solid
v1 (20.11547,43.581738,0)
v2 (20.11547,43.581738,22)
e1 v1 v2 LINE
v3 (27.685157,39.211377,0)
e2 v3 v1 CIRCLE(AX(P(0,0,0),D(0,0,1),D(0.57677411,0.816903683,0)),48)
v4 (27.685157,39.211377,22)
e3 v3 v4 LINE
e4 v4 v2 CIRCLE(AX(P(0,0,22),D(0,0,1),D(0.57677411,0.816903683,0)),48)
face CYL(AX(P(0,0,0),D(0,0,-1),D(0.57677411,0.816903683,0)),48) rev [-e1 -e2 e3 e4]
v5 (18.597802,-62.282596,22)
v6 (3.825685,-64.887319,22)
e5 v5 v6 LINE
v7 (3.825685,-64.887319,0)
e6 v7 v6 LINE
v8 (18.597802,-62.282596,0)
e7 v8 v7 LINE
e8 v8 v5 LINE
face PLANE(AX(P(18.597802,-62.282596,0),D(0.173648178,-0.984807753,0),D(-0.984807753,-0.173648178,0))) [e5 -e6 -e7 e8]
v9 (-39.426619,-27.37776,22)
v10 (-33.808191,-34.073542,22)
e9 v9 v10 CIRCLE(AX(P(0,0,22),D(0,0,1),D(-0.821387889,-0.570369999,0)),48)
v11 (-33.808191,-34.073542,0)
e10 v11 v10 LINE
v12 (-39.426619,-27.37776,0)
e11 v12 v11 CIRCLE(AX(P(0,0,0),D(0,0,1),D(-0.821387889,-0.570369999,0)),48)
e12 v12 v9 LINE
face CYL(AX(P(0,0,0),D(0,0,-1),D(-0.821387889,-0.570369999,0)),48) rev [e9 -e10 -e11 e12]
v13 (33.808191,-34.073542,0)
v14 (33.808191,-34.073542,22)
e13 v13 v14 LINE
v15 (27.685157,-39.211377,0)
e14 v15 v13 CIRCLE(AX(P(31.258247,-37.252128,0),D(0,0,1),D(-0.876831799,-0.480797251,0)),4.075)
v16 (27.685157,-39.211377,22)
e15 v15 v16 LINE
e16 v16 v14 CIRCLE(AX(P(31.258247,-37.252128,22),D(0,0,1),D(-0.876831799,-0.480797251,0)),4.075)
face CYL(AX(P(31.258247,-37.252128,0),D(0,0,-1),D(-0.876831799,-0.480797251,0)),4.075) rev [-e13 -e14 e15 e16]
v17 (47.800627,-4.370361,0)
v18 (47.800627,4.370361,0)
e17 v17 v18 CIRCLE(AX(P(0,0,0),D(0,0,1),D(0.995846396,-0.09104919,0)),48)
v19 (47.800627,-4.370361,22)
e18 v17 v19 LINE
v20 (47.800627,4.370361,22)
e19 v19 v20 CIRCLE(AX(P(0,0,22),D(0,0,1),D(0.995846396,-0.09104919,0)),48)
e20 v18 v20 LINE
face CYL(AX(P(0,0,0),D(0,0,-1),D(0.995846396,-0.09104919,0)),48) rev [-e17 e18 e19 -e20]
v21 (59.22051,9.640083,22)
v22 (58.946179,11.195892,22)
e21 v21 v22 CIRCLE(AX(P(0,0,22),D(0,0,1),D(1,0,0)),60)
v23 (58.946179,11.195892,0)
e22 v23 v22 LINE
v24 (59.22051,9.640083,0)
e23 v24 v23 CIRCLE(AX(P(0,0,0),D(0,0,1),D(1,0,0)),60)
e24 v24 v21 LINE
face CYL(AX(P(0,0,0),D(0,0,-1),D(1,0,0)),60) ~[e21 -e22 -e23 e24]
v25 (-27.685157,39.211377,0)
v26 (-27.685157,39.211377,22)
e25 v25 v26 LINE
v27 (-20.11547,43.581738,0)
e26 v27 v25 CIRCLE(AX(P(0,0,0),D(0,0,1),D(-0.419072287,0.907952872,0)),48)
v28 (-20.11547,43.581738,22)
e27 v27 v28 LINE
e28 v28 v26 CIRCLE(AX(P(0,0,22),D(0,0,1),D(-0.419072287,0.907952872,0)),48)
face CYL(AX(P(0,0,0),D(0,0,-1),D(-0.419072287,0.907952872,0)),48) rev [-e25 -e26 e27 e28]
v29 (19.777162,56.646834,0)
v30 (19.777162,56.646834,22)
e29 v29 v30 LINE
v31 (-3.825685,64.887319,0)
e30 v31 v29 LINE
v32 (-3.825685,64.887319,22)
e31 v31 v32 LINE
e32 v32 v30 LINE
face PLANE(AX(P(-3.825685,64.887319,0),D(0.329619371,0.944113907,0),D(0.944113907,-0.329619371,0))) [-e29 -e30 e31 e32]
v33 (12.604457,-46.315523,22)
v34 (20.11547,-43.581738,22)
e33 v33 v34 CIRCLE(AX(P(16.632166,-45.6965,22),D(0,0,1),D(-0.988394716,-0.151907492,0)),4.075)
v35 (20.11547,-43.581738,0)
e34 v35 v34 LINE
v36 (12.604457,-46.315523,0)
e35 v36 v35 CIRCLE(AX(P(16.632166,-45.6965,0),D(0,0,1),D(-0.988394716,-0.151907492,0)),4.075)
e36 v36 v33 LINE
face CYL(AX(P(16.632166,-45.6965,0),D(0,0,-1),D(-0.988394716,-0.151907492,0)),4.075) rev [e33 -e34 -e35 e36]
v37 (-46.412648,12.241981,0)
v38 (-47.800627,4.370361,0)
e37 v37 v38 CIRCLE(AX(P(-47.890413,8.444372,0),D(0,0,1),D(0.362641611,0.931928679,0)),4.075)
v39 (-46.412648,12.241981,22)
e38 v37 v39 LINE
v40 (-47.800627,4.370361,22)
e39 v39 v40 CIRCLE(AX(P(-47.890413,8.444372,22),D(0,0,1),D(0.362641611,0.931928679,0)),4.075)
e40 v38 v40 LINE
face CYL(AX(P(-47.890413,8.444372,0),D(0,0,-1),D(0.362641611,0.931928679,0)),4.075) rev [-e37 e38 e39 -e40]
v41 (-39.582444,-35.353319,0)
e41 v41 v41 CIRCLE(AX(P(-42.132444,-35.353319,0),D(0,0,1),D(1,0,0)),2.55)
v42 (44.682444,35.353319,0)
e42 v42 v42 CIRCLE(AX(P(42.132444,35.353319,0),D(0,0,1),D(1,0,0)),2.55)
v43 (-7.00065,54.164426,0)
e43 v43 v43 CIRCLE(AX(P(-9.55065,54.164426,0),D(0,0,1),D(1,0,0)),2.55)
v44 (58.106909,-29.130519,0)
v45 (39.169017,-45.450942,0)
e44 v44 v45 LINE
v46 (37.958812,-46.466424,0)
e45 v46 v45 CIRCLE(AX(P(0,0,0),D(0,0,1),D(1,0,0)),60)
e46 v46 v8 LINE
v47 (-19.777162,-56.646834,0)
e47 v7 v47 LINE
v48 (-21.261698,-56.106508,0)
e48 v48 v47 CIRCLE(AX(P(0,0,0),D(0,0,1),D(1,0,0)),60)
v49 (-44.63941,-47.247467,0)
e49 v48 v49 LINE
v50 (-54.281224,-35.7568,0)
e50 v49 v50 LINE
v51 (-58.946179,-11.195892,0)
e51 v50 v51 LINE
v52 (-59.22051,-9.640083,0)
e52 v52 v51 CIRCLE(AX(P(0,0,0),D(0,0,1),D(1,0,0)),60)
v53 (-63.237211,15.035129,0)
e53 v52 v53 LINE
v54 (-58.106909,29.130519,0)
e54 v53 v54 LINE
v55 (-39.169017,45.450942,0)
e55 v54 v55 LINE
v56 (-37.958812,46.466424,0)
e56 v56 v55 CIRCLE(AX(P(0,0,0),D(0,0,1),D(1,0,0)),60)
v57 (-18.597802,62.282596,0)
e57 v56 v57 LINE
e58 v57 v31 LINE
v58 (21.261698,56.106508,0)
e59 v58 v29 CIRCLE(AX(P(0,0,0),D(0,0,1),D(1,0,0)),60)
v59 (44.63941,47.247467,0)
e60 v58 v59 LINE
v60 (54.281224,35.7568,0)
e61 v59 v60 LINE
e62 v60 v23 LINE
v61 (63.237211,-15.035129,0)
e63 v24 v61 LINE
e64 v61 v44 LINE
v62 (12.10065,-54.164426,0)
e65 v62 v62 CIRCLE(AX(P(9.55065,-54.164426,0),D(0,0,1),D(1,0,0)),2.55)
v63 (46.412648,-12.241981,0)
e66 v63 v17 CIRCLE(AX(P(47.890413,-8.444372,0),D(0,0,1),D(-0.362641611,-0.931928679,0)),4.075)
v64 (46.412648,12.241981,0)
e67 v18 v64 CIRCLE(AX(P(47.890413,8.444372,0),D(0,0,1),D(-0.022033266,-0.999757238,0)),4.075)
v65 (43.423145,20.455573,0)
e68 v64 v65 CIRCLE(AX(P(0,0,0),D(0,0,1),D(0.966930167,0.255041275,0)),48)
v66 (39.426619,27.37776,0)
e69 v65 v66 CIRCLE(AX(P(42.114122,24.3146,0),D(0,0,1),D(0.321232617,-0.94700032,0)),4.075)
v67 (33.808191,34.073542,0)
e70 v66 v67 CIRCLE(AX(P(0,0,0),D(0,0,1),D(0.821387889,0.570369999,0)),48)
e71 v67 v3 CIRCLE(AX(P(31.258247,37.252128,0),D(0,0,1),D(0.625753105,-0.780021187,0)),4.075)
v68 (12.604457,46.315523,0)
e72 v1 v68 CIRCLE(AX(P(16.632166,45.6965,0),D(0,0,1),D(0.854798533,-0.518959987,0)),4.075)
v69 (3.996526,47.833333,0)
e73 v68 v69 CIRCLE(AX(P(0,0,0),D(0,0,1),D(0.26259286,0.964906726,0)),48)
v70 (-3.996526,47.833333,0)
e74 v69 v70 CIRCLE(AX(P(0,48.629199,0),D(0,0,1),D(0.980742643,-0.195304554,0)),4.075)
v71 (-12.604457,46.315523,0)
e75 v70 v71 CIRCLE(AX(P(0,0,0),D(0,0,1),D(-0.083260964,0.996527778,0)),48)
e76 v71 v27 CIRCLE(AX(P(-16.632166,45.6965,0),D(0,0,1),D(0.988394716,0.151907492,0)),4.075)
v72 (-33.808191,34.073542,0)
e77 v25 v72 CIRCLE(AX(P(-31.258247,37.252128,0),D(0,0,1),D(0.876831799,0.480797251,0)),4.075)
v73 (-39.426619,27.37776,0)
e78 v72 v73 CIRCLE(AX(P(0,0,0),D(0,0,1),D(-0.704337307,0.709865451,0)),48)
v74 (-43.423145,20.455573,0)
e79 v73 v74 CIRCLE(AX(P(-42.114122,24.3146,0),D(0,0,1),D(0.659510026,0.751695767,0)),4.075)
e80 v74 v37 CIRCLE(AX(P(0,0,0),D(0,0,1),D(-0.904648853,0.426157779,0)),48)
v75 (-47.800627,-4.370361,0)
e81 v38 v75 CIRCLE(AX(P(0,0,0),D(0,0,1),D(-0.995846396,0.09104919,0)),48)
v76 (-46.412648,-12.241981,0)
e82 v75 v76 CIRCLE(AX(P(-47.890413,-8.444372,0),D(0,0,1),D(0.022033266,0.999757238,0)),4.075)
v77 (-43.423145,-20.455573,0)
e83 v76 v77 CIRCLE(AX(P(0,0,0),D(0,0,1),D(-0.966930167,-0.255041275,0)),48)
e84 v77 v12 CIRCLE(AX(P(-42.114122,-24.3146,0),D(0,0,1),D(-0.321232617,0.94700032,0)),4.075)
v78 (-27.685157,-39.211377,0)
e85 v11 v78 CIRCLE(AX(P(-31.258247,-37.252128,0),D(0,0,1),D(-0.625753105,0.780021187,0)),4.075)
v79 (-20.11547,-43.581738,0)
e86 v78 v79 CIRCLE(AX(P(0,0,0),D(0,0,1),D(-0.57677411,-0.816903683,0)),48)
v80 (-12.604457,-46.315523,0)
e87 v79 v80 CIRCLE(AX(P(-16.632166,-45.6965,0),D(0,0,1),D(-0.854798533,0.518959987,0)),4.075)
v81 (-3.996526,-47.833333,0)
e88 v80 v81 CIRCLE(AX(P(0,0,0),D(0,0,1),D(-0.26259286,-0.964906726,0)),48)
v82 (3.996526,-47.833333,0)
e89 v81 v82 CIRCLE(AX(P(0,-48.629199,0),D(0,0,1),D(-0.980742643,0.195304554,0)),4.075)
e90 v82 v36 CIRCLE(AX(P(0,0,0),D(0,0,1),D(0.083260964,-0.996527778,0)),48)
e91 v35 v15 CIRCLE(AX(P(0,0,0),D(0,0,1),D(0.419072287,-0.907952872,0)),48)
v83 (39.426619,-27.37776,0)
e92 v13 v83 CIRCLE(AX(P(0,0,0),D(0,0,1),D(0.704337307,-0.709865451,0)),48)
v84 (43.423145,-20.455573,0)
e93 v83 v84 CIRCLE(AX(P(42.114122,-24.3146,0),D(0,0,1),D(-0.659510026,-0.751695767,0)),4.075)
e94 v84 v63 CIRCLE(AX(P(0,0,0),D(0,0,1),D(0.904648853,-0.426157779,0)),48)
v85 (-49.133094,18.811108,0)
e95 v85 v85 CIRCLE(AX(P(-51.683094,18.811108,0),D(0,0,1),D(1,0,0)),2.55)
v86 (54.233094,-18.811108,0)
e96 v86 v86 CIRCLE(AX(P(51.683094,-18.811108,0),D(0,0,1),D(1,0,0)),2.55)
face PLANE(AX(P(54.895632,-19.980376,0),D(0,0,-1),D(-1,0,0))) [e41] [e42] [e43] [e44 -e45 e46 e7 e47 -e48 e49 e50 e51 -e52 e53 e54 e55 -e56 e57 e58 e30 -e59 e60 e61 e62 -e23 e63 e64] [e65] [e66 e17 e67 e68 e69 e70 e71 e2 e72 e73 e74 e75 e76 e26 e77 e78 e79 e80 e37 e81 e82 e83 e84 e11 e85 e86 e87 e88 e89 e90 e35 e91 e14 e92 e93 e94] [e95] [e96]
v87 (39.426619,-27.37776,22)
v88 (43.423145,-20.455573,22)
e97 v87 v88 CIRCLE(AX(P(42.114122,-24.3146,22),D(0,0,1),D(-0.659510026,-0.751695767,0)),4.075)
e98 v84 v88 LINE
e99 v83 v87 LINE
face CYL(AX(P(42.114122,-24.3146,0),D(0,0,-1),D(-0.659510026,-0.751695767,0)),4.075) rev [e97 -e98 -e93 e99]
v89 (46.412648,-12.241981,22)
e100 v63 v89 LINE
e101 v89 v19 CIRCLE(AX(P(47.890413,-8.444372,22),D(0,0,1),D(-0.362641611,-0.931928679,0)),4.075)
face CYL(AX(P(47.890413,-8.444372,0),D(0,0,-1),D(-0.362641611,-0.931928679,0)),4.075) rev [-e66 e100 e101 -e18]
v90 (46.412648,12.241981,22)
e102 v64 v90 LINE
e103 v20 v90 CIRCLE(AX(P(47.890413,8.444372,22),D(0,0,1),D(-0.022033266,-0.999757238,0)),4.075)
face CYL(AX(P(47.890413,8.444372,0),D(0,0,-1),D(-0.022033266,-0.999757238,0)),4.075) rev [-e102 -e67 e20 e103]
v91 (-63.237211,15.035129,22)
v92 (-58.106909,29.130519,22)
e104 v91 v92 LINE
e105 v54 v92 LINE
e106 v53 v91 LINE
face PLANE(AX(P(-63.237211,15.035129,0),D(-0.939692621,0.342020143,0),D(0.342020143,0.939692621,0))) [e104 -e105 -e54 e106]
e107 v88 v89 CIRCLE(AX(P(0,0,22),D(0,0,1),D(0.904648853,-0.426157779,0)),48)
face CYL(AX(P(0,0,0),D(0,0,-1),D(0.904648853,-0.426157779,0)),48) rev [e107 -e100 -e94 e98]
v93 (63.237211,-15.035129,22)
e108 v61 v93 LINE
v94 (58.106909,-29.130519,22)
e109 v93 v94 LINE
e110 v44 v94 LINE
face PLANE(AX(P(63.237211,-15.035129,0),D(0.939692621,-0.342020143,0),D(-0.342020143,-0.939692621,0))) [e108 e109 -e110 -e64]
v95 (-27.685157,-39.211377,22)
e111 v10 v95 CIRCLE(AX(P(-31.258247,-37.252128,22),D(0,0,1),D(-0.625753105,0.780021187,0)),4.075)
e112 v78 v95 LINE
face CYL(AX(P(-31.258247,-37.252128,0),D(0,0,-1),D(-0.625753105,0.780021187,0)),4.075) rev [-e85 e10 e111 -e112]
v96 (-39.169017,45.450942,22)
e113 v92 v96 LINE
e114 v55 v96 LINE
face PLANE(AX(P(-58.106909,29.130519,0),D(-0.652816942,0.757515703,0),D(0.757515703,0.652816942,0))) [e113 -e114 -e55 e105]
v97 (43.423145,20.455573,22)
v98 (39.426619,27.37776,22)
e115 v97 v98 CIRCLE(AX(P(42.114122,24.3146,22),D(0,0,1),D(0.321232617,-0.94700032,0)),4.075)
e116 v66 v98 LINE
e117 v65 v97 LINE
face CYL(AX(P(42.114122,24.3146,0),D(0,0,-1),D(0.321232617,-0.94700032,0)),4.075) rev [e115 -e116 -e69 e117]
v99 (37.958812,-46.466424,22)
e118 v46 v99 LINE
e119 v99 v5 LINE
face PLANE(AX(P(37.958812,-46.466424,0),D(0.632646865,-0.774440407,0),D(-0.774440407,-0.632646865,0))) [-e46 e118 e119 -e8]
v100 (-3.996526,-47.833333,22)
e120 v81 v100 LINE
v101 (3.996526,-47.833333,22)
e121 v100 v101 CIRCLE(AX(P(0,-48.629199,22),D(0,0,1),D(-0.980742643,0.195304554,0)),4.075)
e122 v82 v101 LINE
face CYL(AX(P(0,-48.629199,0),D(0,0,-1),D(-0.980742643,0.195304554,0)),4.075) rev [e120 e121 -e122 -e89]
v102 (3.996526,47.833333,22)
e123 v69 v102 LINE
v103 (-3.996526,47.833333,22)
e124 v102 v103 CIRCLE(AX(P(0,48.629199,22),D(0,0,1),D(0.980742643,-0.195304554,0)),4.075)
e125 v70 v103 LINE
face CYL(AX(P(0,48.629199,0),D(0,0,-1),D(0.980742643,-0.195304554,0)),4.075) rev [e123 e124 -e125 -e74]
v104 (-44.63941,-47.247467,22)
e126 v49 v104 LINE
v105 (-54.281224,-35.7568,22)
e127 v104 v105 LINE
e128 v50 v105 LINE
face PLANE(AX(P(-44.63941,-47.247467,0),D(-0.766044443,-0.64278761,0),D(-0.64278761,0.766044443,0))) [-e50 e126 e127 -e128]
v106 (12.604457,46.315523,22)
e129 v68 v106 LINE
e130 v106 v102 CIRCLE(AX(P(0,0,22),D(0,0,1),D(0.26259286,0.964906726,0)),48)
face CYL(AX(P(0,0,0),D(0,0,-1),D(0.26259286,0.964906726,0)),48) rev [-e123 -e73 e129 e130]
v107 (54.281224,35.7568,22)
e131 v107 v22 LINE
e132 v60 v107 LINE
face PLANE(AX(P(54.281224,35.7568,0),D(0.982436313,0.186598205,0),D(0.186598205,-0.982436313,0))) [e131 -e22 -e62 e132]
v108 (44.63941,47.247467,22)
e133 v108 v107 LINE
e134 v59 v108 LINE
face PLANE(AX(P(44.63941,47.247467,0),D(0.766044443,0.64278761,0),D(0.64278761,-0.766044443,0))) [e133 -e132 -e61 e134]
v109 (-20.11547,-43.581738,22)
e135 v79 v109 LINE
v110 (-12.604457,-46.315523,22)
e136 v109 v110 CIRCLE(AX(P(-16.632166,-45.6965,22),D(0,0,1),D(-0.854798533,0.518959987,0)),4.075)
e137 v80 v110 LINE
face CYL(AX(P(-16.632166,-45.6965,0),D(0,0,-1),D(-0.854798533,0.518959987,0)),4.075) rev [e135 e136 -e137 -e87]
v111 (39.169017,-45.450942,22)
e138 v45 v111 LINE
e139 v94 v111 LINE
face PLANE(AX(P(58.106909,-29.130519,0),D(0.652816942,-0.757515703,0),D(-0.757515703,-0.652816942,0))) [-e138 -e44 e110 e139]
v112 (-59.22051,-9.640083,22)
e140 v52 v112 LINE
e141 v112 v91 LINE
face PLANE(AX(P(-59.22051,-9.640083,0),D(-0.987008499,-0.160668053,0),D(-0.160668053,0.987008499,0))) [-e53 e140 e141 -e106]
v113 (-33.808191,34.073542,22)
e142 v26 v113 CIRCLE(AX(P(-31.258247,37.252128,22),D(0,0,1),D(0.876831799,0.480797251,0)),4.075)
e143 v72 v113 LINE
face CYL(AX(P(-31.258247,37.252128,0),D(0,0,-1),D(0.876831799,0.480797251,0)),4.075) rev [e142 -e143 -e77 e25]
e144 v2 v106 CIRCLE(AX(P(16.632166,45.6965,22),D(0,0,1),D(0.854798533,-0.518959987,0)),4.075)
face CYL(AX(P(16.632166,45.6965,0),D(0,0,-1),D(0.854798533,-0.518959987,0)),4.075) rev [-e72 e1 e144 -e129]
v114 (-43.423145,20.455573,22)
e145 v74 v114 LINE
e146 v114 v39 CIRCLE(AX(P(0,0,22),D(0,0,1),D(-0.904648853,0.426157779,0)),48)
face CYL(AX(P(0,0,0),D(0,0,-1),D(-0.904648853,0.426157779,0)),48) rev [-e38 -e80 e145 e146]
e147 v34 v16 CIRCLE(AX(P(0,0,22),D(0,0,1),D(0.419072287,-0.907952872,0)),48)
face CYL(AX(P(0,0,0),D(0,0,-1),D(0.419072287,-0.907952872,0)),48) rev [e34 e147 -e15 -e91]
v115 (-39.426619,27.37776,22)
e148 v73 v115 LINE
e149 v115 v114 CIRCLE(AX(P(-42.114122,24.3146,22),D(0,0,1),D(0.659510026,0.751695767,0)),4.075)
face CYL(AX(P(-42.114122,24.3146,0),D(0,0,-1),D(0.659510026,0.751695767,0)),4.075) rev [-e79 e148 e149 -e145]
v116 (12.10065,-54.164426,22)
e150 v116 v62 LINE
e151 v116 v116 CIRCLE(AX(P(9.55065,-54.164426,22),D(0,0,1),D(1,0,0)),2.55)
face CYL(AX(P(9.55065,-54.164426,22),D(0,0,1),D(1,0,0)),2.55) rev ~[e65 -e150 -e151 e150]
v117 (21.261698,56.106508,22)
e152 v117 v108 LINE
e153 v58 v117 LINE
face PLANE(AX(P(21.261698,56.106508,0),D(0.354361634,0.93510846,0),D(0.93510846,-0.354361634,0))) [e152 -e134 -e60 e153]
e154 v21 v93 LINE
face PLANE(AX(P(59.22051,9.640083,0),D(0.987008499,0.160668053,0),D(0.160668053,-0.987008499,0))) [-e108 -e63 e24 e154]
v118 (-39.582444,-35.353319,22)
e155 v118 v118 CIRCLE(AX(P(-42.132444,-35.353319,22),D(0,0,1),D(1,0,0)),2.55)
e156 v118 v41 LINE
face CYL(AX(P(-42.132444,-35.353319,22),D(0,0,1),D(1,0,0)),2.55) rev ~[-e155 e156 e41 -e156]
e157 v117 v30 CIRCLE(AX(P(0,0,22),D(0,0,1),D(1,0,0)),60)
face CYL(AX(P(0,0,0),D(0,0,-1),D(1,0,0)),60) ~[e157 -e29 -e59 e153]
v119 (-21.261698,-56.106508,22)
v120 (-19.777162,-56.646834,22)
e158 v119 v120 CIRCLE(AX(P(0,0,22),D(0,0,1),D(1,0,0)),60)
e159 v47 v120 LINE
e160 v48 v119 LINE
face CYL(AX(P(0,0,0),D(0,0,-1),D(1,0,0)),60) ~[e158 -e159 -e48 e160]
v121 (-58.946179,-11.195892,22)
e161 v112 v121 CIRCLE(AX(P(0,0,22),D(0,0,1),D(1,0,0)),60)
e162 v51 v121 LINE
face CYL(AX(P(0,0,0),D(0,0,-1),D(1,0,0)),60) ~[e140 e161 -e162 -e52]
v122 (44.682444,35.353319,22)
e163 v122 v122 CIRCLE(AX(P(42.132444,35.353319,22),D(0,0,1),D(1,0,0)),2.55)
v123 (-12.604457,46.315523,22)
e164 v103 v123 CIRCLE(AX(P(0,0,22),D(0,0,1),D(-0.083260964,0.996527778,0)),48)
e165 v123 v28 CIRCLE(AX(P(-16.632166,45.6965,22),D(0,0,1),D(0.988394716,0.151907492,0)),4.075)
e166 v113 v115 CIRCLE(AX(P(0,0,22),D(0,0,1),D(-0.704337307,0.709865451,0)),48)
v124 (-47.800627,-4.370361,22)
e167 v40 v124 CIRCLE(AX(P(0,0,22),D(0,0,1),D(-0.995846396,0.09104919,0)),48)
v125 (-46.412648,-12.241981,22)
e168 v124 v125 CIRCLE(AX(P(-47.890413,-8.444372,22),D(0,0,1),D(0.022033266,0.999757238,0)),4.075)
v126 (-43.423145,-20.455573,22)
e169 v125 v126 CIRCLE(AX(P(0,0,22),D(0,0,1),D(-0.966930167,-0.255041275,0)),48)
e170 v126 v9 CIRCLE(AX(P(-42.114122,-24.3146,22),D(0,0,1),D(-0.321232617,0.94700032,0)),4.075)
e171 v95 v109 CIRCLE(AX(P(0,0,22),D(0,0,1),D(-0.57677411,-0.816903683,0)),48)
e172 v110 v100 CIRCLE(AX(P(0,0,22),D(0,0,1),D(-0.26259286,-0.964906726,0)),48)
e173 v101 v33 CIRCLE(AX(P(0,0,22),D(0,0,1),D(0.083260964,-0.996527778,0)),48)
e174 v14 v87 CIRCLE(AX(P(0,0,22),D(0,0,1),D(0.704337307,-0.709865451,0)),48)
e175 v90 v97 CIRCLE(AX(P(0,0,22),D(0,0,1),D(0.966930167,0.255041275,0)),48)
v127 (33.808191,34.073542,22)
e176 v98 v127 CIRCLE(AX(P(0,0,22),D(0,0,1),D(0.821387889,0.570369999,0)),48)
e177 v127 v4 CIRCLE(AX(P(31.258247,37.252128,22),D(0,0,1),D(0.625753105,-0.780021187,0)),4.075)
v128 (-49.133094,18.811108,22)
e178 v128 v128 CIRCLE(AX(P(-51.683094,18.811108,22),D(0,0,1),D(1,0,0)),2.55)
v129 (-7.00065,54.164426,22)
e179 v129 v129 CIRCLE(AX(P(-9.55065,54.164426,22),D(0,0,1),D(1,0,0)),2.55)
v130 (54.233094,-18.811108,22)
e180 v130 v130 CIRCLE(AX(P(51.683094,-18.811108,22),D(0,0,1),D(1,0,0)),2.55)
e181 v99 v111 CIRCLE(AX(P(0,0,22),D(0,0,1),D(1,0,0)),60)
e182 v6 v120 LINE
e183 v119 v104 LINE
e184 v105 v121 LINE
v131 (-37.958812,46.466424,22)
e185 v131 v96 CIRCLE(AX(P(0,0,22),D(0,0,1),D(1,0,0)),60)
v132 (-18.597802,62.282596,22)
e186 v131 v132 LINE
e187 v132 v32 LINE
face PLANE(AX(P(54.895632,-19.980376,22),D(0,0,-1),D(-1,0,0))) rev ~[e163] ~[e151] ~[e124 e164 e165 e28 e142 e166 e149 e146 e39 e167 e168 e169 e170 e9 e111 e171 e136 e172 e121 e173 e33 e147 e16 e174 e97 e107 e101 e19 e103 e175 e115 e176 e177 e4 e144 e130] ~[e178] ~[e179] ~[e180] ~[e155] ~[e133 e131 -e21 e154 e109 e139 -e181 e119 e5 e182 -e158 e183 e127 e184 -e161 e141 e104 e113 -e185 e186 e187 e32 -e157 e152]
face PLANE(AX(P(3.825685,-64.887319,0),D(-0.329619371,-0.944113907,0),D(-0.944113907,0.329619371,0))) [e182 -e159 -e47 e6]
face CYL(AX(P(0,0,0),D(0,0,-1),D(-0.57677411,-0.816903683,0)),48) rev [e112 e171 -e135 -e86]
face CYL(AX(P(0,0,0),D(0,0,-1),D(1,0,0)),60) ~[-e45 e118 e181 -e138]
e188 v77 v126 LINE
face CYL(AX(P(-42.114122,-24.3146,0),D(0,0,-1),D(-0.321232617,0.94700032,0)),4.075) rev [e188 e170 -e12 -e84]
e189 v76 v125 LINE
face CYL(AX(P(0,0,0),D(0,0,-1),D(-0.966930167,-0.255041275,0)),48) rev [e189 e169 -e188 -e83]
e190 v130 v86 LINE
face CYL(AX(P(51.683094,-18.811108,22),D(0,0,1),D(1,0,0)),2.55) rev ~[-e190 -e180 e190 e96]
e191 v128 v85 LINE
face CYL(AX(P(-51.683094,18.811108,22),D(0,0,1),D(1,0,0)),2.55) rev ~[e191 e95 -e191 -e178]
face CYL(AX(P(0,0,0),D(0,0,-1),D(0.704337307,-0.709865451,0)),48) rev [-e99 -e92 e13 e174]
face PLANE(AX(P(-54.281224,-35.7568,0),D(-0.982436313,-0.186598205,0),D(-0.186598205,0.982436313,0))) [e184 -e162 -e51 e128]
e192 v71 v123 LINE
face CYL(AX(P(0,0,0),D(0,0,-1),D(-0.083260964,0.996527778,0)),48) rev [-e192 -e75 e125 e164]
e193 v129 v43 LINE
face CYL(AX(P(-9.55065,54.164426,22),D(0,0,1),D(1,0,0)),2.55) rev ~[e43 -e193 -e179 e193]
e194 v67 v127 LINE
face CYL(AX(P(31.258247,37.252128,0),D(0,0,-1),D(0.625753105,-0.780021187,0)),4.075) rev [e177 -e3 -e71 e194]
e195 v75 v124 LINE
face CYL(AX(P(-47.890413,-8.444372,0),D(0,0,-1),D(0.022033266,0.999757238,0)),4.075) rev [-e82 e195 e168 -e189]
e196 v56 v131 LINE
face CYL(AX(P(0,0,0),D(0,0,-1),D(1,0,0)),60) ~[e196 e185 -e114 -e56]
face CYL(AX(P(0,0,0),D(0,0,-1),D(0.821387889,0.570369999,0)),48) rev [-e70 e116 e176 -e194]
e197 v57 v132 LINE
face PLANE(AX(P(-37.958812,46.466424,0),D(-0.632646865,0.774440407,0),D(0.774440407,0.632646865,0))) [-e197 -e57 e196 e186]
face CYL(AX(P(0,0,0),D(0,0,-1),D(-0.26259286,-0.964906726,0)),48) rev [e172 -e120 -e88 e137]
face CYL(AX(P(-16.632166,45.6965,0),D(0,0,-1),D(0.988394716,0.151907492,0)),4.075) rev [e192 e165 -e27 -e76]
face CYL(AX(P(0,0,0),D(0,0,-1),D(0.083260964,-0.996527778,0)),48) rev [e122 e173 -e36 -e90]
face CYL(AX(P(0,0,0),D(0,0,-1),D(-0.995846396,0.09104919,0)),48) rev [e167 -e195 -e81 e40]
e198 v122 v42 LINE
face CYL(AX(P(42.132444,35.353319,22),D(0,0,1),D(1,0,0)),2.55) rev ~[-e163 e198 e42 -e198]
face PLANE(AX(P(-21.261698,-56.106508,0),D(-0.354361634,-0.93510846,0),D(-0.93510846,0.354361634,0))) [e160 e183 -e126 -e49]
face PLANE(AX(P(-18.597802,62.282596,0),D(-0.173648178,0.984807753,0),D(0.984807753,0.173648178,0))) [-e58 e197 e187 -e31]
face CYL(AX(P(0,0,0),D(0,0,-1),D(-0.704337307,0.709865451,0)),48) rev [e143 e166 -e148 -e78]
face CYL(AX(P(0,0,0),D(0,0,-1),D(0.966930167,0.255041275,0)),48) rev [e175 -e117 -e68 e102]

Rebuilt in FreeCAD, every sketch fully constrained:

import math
import FreeCAD as App
import Part
import Sketcher
Q = App.Units.Quantity

doc = App.newDocument("Part")
body = doc.addObject("PartDesign::Body", "Body")

sketch1 = doc.addObject("Sketcher::SketchObject", "Sketch")
body.addObject(sketch1)
sketch1.AttachmentSupport = (doc.XY_Plane, [""])
sketch1.MapMode = "FlatFace"
sketch1.addGeometry(Part.Circle(App.Vector(0, 0, 0), App.Vector(0, 0, 1), 60), False)
sketch1.addGeometry(Part.ArcOfCircle(Part.Circle(App.Vector(0, 48.6, 0), App.Vector(0, 0, 1), 4.1), math.radians(-11), math.radians(191)), False)
sketch1.addGeometry(Part.ArcOfCircle(Part.Circle(App.Vector(0, 0, 0), App.Vector(0, 0, 1), 48), math.radians(74.78), math.radians(85.22)), False)
sketch1.addGeometry(Part.ArcOfCircle(Part.Circle(App.Vector(16.6, 45.7, 0), App.Vector(0, 0, 1), 4.1), math.radians(-31), math.radians(171)), False)
sketch1.addGeometry(Part.ArcOfCircle(Part.Circle(App.Vector(0, 0, 0), App.Vector(0, 0, 1), 48), math.radians(54.78), math.radians(65.22)), False)
sketch1.addGeometry(Part.ArcOfCircle(Part.Circle(App.Vector(31.3, 37.3, 0), App.Vector(0, 0, 1), 4.1), math.radians(-51), math.radians(151)), False)
sketch1.addGeometry(Part.ArcOfCircle(Part.Circle(App.Vector(0, 0, 0), App.Vector(0, 0, 1), 48), math.radians(34.78), math.radians(45.22)), False)
sketch1.addGeometry(Part.ArcOfCircle(Part.Circle(App.Vector(42.1, 24.3, 0), App.Vector(0, 0, 1), 4.1), math.radians(-71), math.radians(131)), False)
sketch1.addGeometry(Part.ArcOfCircle(Part.Circle(App.Vector(0, 0, 0), App.Vector(0, 0, 1), 48), math.radians(14.78), math.radians(25.22)), False)
sketch1.addGeometry(Part.ArcOfCircle(Part.Circle(App.Vector(47.9, 8.4, 0), App.Vector(0, 0, 1), 4.1), math.radians(-91), math.radians(111)), False)
sketch1.addGeometry(Part.ArcOfCircle(Part.Circle(App.Vector(0, 0, 0), App.Vector(0, 0, 1), 48), math.radians(-5.22), math.radians(5.22)), False)
sketch1.addGeometry(Part.ArcOfCircle(Part.Circle(App.Vector(47.9, -8.4, 0), App.Vector(0, 0, 1), 4.1), math.radians(-111), math.radians(91)), False)
sketch1.addGeometry(Part.ArcOfCircle(Part.Circle(App.Vector(0, 0, 0), App.Vector(0, 0, 1), 48), math.radians(-25.22), math.radians(-14.78)), False)
sketch1.addGeometry(Part.ArcOfCircle(Part.Circle(App.Vector(42.1, -24.3, 0), App.Vector(0, 0, 1), 4.1), math.radians(-131), math.radians(71)), False)
sketch1.addGeometry(Part.ArcOfCircle(Part.Circle(App.Vector(0, 0, 0), App.Vector(0, 0, 1), 48), math.radians(-45.22), math.radians(-34.78)), False)
sketch1.addGeometry(Part.ArcOfCircle(Part.Circle(App.Vector(31.3, -37.3, 0), App.Vector(0, 0, 1), 4.1), math.radians(-151), math.radians(51)), False)
sketch1.addGeometry(Part.ArcOfCircle(Part.Circle(App.Vector(0, 0, 0), App.Vector(0, 0, 1), 48), math.radians(-65.22), math.radians(-54.78)), False)
sketch1.addGeometry(Part.ArcOfCircle(Part.Circle(App.Vector(16.6, -45.7, 0), App.Vector(0, 0, 1), 4.1), math.radians(-171), math.radians(31)), False)
sketch1.addGeometry(Part.ArcOfCircle(Part.Circle(App.Vector(0, 0, 0), App.Vector(0, 0, 1), 48), math.radians(-85.22), math.radians(-74.78)), False)
sketch1.addGeometry(Part.ArcOfCircle(Part.Circle(App.Vector(0, -48.6, 0), App.Vector(0, 0, 1), 4.1), math.radians(169), math.radians(371)), False)
sketch1.addGeometry(Part.ArcOfCircle(Part.Circle(App.Vector(0, 0, 0), App.Vector(0, 0, 1), 48), math.radians(-105.22), math.radians(-94.78)), False)
sketch1.addGeometry(Part.ArcOfCircle(Part.Circle(App.Vector(-16.6, -45.7, 0), App.Vector(0, 0, 1), 4.1), math.radians(149), math.radians(351)), False)
sketch1.addGeometry(Part.ArcOfCircle(Part.Circle(App.Vector(0, 0, 0), App.Vector(0, 0, 1), 48), math.radians(-125.22), math.radians(-114.78)), False)
sketch1.addGeometry(Part.ArcOfCircle(Part.Circle(App.Vector(-31.3, -37.3, 0), App.Vector(0, 0, 1), 4.1), math.radians(129), math.radians(331)), False)
sketch1.addGeometry(Part.ArcOfCircle(Part.Circle(App.Vector(0, 0, 0), App.Vector(0, 0, 1), 48), math.radians(-145.22), math.radians(-134.78)), False)
sketch1.addGeometry(Part.ArcOfCircle(Part.Circle(App.Vector(-42.1, -24.3, 0), App.Vector(0, 0, 1), 4.1), math.radians(109), math.radians(311)), False)
sketch1.addGeometry(Part.ArcOfCircle(Part.Circle(App.Vector(0, 0, 0), App.Vector(0, 0, 1), 48), math.radians(-165.22), math.radians(-154.78)), False)
sketch1.addGeometry(Part.ArcOfCircle(Part.Circle(App.Vector(-47.9, -8.4, 0), App.Vector(0, 0, 1), 4.1), math.radians(89), math.radians(291)), False)
sketch1.addGeometry(Part.ArcOfCircle(Part.Circle(App.Vector(0, 0, 0), App.Vector(0, 0, 1), 48), math.radians(174.78), math.radians(185.22)), False)
sketch1.addGeometry(Part.ArcOfCircle(Part.Circle(App.Vector(-47.9, 8.4, 0), App.Vector(0, 0, 1), 4.1), math.radians(69), math.radians(271)), False)
sketch1.addGeometry(Part.ArcOfCircle(Part.Circle(App.Vector(0, 0, 0), App.Vector(0, 0, 1), 48), math.radians(154.78), math.radians(165.22)), False)
sketch1.addGeometry(Part.ArcOfCircle(Part.Circle(App.Vector(-42.1, 24.3, 0), App.Vector(0, 0, 1), 4.1), math.radians(49), math.radians(251)), False)
sketch1.addGeometry(Part.ArcOfCircle(Part.Circle(App.Vector(0, 0, 0), App.Vector(0, 0, 1), 48), math.radians(134.78), math.radians(145.22)), False)
sketch1.addGeometry(Part.ArcOfCircle(Part.Circle(App.Vector(-31.3, 37.3, 0), App.Vector(0, 0, 1), 4.1), math.radians(29), math.radians(231)), False)
sketch1.addGeometry(Part.ArcOfCircle(Part.Circle(App.Vector(0, 0, 0), App.Vector(0, 0, 1), 48), math.radians(114.78), math.radians(125.22)), False)
sketch1.addGeometry(Part.ArcOfCircle(Part.Circle(App.Vector(-16.6, 45.7, 0), App.Vector(0, 0, 1), 4.1), math.radians(9), math.radians(211)), False)
sketch1.addGeometry(Part.ArcOfCircle(Part.Circle(App.Vector(0, 0, 0), App.Vector(0, 0, 1), 48), math.radians(94.78), math.radians(105.22)), False)
sketch1.addConstraint(Sketcher.Constraint("Coincident", 1, 1, 2, 2))
sketch1.addConstraint(Sketcher.Constraint("Coincident", 2, 1, 3, 2))
sketch1.addConstraint(Sketcher.Constraint("Coincident", 3, 1, 4, 2))
sketch1.addConstraint(Sketcher.Constraint("Coincident", 4, 1, 5, 2))
sketch1.addConstraint(Sketcher.Constraint("Coincident", 5, 1, 6, 2))
sketch1.addConstraint(Sketcher.Constraint("Coincident", 6, 1, 7, 2))
sketch1.addConstraint(Sketcher.Constraint("Coincident", 7, 1, 8, 2))
sketch1.addConstraint(Sketcher.Constraint("Coincident", 8, 1, 9, 2))
sketch1.addConstraint(Sketcher.Constraint("Coincident", 9, 1, 10, 2))
sketch1.addConstraint(Sketcher.Constraint("Coincident", 10, 1, 11, 2))
sketch1.addConstraint(Sketcher.Constraint("Coincident", 11, 1, 12, 2))
sketch1.addConstraint(Sketcher.Constraint("Coincident", 12, 1, 13, 2))
sketch1.addConstraint(Sketcher.Constraint("Coincident", 13, 1, 14, 2))
sketch1.addConstraint(Sketcher.Constraint("Coincident", 14, 1, 15, 2))
sketch1.addConstraint(Sketcher.Constraint("Coincident", 15, 1, 16, 2))
sketch1.addConstraint(Sketcher.Constraint("Coincident", 16, 1, 17, 2))
sketch1.addConstraint(Sketcher.Constraint("Coincident", 17, 1, 18, 2))
sketch1.addConstraint(Sketcher.Constraint("Coincident", 18, 1, 19, 2))
sketch1.addConstraint(Sketcher.Constraint("Coincident", 19, 1, 20, 2))
sketch1.addConstraint(Sketcher.Constraint("Coincident", 20, 1, 21, 2))
sketch1.addConstraint(Sketcher.Constraint("Coincident", 21, 1, 22, 2))
sketch1.addConstraint(Sketcher.Constraint("Coincident", 22, 1, 23, 2))
sketch1.addConstraint(Sketcher.Constraint("Coincident", 23, 1, 24, 2))
sketch1.addConstraint(Sketcher.Constraint("Coincident", 24, 1, 25, 2))
sketch1.addConstraint(Sketcher.Constraint("Coincident", 25, 1, 26, 2))
sketch1.addConstraint(Sketcher.Constraint("Coincident", 26, 1, 27, 2))
sketch1.addConstraint(Sketcher.Constraint("Coincident", 27, 1, 28, 2))
sketch1.addConstraint(Sketcher.Constraint("Coincident", 28, 1, 29, 2))
sketch1.addConstraint(Sketcher.Constraint("Coincident", 29, 1, 30, 2))
sketch1.addConstraint(Sketcher.Constraint("Coincident", 30, 1, 31, 2))
sketch1.addConstraint(Sketcher.Constraint("Coincident", 31, 1, 32, 2))
sketch1.addConstraint(Sketcher.Constraint("Coincident", 32, 1, 33, 2))
sketch1.addConstraint(Sketcher.Constraint("Coincident", 33, 1, 34, 2))
sketch1.addConstraint(Sketcher.Constraint("Coincident", 34, 1, 35, 2))
sketch1.addConstraint(Sketcher.Constraint("Coincident", 35, 1, 36, 2))
sketch1.addConstraint(Sketcher.Constraint("Coincident", 36, 1, 1, 2))
sketch1.addConstraint(Sketcher.Constraint("Coincident", 0, 3, -1, 1))
sketch1.addConstraint(Sketcher.Constraint("Coincident", 2, 3, -1, 1))
sketch1.addConstraint(Sketcher.Constraint("Coincident", 4, 3, -1, 1))
sketch1.addConstraint(Sketcher.Constraint("Coincident", 6, 3, -1, 1))
sketch1.addConstraint(Sketcher.Constraint("Coincident", 8, 3, -1, 1))
sketch1.addConstraint(Sketcher.Constraint("Coincident", 10, 3, -1, 1))
sketch1.addConstraint(Sketcher.Constraint("Coincident", 12, 3, -1, 1))
sketch1.addConstraint(Sketcher.Constraint("Coincident", 14, 3, -1, 1))
sketch1.addConstraint(Sketcher.Constraint("Coincident", 16, 3, -1, 1))
sketch1.addConstraint(Sketcher.Constraint("Coincident", 18, 3, -1, 1))
sketch1.addConstraint(Sketcher.Constraint("Coincident", 20, 3, -1, 1))
sketch1.addConstraint(Sketcher.Constraint("Coincident", 22, 3, -1, 1))
sketch1.addConstraint(Sketcher.Constraint("Coincident", 24, 3, -1, 1))
sketch1.addConstraint(Sketcher.Constraint("Coincident", 26, 3, -1, 1))
sketch1.addConstraint(Sketcher.Constraint("Coincident", 28, 3, -1, 1))
sketch1.addConstraint(Sketcher.Constraint("Coincident", 30, 3, -1, 1))
sketch1.addConstraint(Sketcher.Constraint("Coincident", 32, 3, -1, 1))
sketch1.addConstraint(Sketcher.Constraint("Coincident", 34, 3, -1, 1))
sketch1.addConstraint(Sketcher.Constraint("Coincident", 36, 3, -1, 1))
sketch1.addConstraint(Sketcher.Constraint("Equal", 1, 3))
sketch1.addConstraint(Sketcher.Constraint("Equal", 2, 4))
sketch1.addConstraint(Sketcher.Constraint("Equal", 3, 5))
sketch1.addConstraint(Sketcher.Constraint("Equal", 4, 6))
sketch1.addConstraint(Sketcher.Constraint("Equal", 5, 7))
sketch1.addConstraint(Sketcher.Constraint("Equal", 6, 8))
sketch1.addConstraint(Sketcher.Constraint("Equal", 7, 9))
sketch1.addConstraint(Sketcher.Constraint("Equal", 8, 10))
sketch1.addConstraint(Sketcher.Constraint("Equal", 9, 11))
sketch1.addConstraint(Sketcher.Constraint("Equal", 10, 12))
sketch1.addConstraint(Sketcher.Constraint("Equal", 11, 13))
sketch1.addConstraint(Sketcher.Constraint("Equal", 12, 14))
sketch1.addConstraint(Sketcher.Constraint("Equal", 13, 15))
sketch1.addConstraint(Sketcher.Constraint("Equal", 14, 16))
sketch1.addConstraint(Sketcher.Constraint("Equal", 15, 17))
sketch1.addConstraint(Sketcher.Constraint("Equal", 16, 18))
sketch1.addConstraint(Sketcher.Constraint("Equal", 17, 19))
sketch1.addConstraint(Sketcher.Constraint("Equal", 18, 20))
sketch1.addConstraint(Sketcher.Constraint("Equal", 19, 21))
sketch1.addConstraint(Sketcher.Constraint("Equal", 20, 22))
sketch1.addConstraint(Sketcher.Constraint("Equal", 21, 23))
sketch1.addConstraint(Sketcher.Constraint("Equal", 22, 24))
sketch1.addConstraint(Sketcher.Constraint("Equal", 23, 25))
sketch1.addConstraint(Sketcher.Constraint("Equal", 24, 26))
sketch1.addConstraint(Sketcher.Constraint("Equal", 25, 27))
sketch1.addConstraint(Sketcher.Constraint("Equal", 26, 28))
sketch1.addConstraint(Sketcher.Constraint("Equal", 27, 29))
sketch1.addConstraint(Sketcher.Constraint("Equal", 28, 30))
sketch1.addConstraint(Sketcher.Constraint("Equal", 29, 31))
sketch1.addConstraint(Sketcher.Constraint("Equal", 30, 32))
sketch1.addConstraint(Sketcher.Constraint("Equal", 31, 33))
sketch1.addConstraint(Sketcher.Constraint("Equal", 32, 34))
sketch1.addConstraint(Sketcher.Constraint("Equal", 33, 35))
sketch1.addConstraint(Sketcher.Constraint("Equal", 34, 36))
sketch1.addConstraint(Sketcher.Constraint("Symmetric", 1, 3, 19, 3, -1, 1))
sketch1.addConstraint(Sketcher.Constraint("Symmetric", 3, 3, 21, 3, -1, 1))
sketch1.addConstraint(Sketcher.Constraint("Symmetric", 5, 3, 23, 3, -1, 1))
sketch1.addConstraint(Sketcher.Constraint("Symmetric", 7, 3, 25, 3, -1, 1))
sketch1.addConstraint(Sketcher.Constraint("Symmetric", 9, 3, 27, 3, -1, 1))
sketch1.addConstraint(Sketcher.Constraint("Symmetric", 11, 3, 29, 3, -1, 1))
sketch1.addConstraint(Sketcher.Constraint("Symmetric", 13, 3, 31, 3, -1, 1))
sketch1.addConstraint(Sketcher.Constraint("Symmetric", 15, 3, 33, 3, -1, 1))
sketch1.addConstraint(Sketcher.Constraint("Symmetric", 17, 3, 35, 3, -1, 1))
sketch1.addConstraint(Sketcher.Constraint("Symmetric", 17, 3, 21, 3, -2))
sketch1.addConstraint(Sketcher.Constraint("Symmetric", 15, 3, 23, 3, -2))
sketch1.addConstraint(Sketcher.Constraint("Symmetric", 13, 3, 25, 3, -2))
sketch1.addConstraint(Sketcher.Constraint("Symmetric", 11, 3, 27, 3, -2))
sketch1.addConstraint(Sketcher.Constraint("PointOnObject", 1, 3, -2))
sketch1.addConstraint(Sketcher.Constraint("Diameter", 0, 120.0))
sketch1.addConstraint(Sketcher.Constraint("Radius", 2, 48.0))
sketch1.addConstraint(Sketcher.Constraint("Radius", 1, 4.075))
sketch1.addConstraint(Sketcher.Constraint("DistanceY", -1, 1, 1, 3, 48.629199))
sketch1.addConstraint(Sketcher.Constraint("DistanceY", -1, 1, 3, 3, 45.6965))
sketch1.addConstraint(Sketcher.Constraint("DistanceY", -1, 1, 7, 3, 24.3146))
sketch1.addConstraint(Sketcher.Constraint("DistanceY", -1, 1, 9, 3, 8.444372))
sketch1.addConstraint(Sketcher.Constraint("DistanceX", -1, 1, 3, 1, 20.11547))
sketch1.addConstraint(Sketcher.Constraint("DistanceX", -1, 1, 5, 1, 33.808191))
sketch1.addConstraint(Sketcher.Constraint("DistanceX", -1, 1, 6, 1, 39.426619))
sketch1.addConstraint(Sketcher.Constraint("DistanceX", -1, 1, 8, 1, 46.412648))
sketch1.addConstraint(Sketcher.Constraint("DistanceX", -1, 1, 5, 3, 31.258247))
pad1 = doc.addObject("PartDesign::Pad", "Pad")
body.addObject(pad1)
pad1.Profile = sketch1
pad1.Length = 22

sketch2 = doc.addObject("Sketcher::SketchObject", "Sketch001")
body.addObject(sketch2)
sketch2.AttachmentSupport = (doc.XY_Plane, [""])
sketch2.MapMode = "FlatFace"
sketch2.AttachmentOffset = App.Placement(App.Vector(0, 0, 22), App.Rotation())
sketch2.addGeometry(Part.Circle(App.Vector(-9.6, 54.2, 0), App.Vector(0, 0, 1), 2.5), False)
sketch2.addGeometry(Part.Circle(App.Vector(42.1, 35.4, 0), App.Vector(0, 0, 1), 2.5), False)
sketch2.addGeometry(Part.Circle(App.Vector(51.7, -18.8, 0), App.Vector(0, 0, 1), 2.5), False)
sketch2.addGeometry(Part.Circle(App.Vector(9.6, -54.2, 0), App.Vector(0, 0, 1), 2.5), False)
sketch2.addGeometry(Part.Circle(App.Vector(-42.1, -35.4, 0), App.Vector(0, 0, 1), 2.5), False)
sketch2.addGeometry(Part.Circle(App.Vector(-51.7, 18.8, 0), App.Vector(0, 0, 1), 2.5), False)
sketch2.addConstraint(Sketcher.Constraint("Equal", 0, 1))
sketch2.addConstraint(Sketcher.Constraint("Equal", 1, 2))
sketch2.addConstraint(Sketcher.Constraint("Equal", 2, 3))
sketch2.addConstraint(Sketcher.Constraint("Equal", 3, 4))
sketch2.addConstraint(Sketcher.Constraint("Equal", 4, 5))
sketch2.addConstraint(Sketcher.Constraint("Symmetric", 0, 3, 3, 3, -1, 1))
sketch2.addConstraint(Sketcher.Constraint("Symmetric", 1, 3, 4, 3, -1, 1))
sketch2.addConstraint(Sketcher.Constraint("Symmetric", 2, 3, 5, 3, -1, 1))
sketch2.addConstraint(Sketcher.Constraint("Diameter", 0, 5.1))
sketch2.addConstraint(Sketcher.Constraint("DistanceX", 0, 3, 3, 3, 19.1013))
sketch2.addConstraint(Sketcher.Constraint("DistanceY", -1, 1, 1, 3, 35.353319))
sketch2.addConstraint(Sketcher.Constraint("DistanceX", 1, 3, 2, 3, 9.55065))
sketch2.addConstraint(Sketcher.Constraint("DistanceY", 3, 3, 2, 3, 35.353319))
sketch2.addConstraint(Sketcher.Constraint("DistanceX", 4, 3, 2, 3, 93.815539))
sketch2.addConstraint(Sketcher.Constraint("DistanceY", 4, 3, 2, 3, 16.542211))
pocket1 = doc.addObject("PartDesign::Pocket", "Pocket")
body.addObject(pocket1)
pocket1.Profile = sketch2
pocket1.Type = "ThroughAll"

sketch3 = doc.addObject("Sketcher::SketchObject", "Sketch002")
body.addObject(sketch3)
sketch3.AttachmentSupport = (doc.XY_Plane, [""])
sketch3.MapMode = "FlatFace"
sketch3.addGeometry(Part.LineSegment(App.Vector(-19, 62, 0), App.Vector(-38, 46, 0)), False)
sketch3.addGeometry(Part.ArcOfCircle(Part.Circle(App.Vector(0, 0, 0), App.Vector(0, 0, 1), 60), math.radians(71), math.radians(129)), False)
sketch3.addGeometry(Part.LineSegment(App.Vector(20, 57, 0), App.Vector(-4, 65, 0)), False)
sketch3.addGeometry(Part.LineSegment(App.Vector(-4, 65, 0), App.Vector(-19, 62, 0)), False)
sketch3.addGeometry(Part.LineSegment(App.Vector(59, 11, 0), App.Vector(54, 36, 0)), False)
sketch3.addGeometry(Part.LineSegment(App.Vector(54, 36, 0), App.Vector(45, 47, 0)), False)
sketch3.addGeometry(Part.LineSegment(App.Vector(45, 47, 0), App.Vector(21, 56, 0)), False)
sketch3.addGeometry(Part.ArcOfCircle(Part.Circle(App.Vector(0, 0, 0), App.Vector(0, 0, 1), 60), math.radians(11), math.radians(69)), False)
sketch3.addGeometry(Part.LineSegment(App.Vector(39, -45, 0), App.Vector(58, -29, 0)), False)
sketch3.addGeometry(Part.LineSegment(App.Vector(58, -29, 0), App.Vector(63, -15, 0)), False)
sketch3.addGeometry(Part.LineSegment(App.Vector(63, -15, 0), App.Vector(59, 10, 0)), False)
sketch3.addGeometry(Part.ArcOfCircle(Part.Circle(App.Vector(0, 0, 0), App.Vector(0, 0, 1), 60), math.radians(-49), math.radians(9)), False)
sketch3.addGeometry(Part.LineSegment(App.Vector(-20, -57, 0), App.Vector(4, -65, 0)), False)
sketch3.addGeometry(Part.LineSegment(App.Vector(4, -65, 0), App.Vector(19, -62, 0)), False)
sketch3.addGeometry(Part.LineSegment(App.Vector(19, -62, 0), App.Vector(38, -46, 0)), False)
sketch3.addGeometry(Part.ArcOfCircle(Part.Circle(App.Vector(0, 0, 0), App.Vector(0, 0, 1), 60), math.radians(-109), math.radians(-51)), False)
sketch3.addGeometry(Part.LineSegment(App.Vector(-59, -11, 0), App.Vector(-54, -36, 0)), False)
sketch3.addGeometry(Part.LineSegment(App.Vector(-54, -36, 0), App.Vector(-45, -47, 0)), False)
sketch3.addGeometry(Part.LineSegment(App.Vector(-45, -47, 0), App.Vector(-21, -56, 0)), False)
sketch3.addGeometry(Part.ArcOfCircle(Part.Circle(App.Vector(0, 0, 0), App.Vector(0, 0, 1), 60), math.radians(-169), math.radians(-111)), False)
sketch3.addGeometry(Part.LineSegment(App.Vector(-39, 45, 0), App.Vector(-58, 29, 0)), False)
sketch3.addGeometry(Part.LineSegment(App.Vector(-58, 29, 0), App.Vector(-63, 15, 0)), False)
sketch3.addGeometry(Part.LineSegment(App.Vector(-63, 15, 0), App.Vector(-59, -10, 0)), False)
sketch3.addGeometry(Part.ArcOfCircle(Part.Circle(App.Vector(0, 0, 0), App.Vector(0, 0, 1), 60), math.radians(131), math.radians(189)), False)
sketch3.addConstraint(Sketcher.Constraint("Tangent", 0, 2, 1, 2))
sketch3.addConstraint(Sketcher.Constraint("Tangent", 1, 1, 2, 1))
sketch3.addConstraint(Sketcher.Constraint("Coincident", 2, 2, 3, 1))
sketch3.addConstraint(Sketcher.Constraint("Coincident", 3, 2, 0, 1))
sketch3.addConstraint(Sketcher.Constraint("Coincident", 4, 2, 5, 1))
sketch3.addConstraint(Sketcher.Constraint("Coincident", 5, 2, 6, 1))
sketch3.addConstraint(Sketcher.Constraint("Tangent", 6, 2, 7, 2))
sketch3.addConstraint(Sketcher.Constraint("Tangent", 7, 1, 4, 1))
sketch3.addConstraint(Sketcher.Constraint("Coincident", 8, 2, 9, 1))
sketch3.addConstraint(Sketcher.Constraint("Coincident", 9, 2, 10, 1))
sketch3.addConstraint(Sketcher.Constraint("Tangent", 10, 2, 11, 2))
sketch3.addConstraint(Sketcher.Constraint("Tangent", 11, 1, 8, 1))
sketch3.addConstraint(Sketcher.Constraint("Coincident", 12, 2, 13, 1))
sketch3.addConstraint(Sketcher.Constraint("Coincident", 13, 2, 14, 1))
sketch3.addConstraint(Sketcher.Constraint("Tangent", 14, 2, 15, 2))
sketch3.addConstraint(Sketcher.Constraint("Tangent", 15, 1, 12, 1))
sketch3.addConstraint(Sketcher.Constraint("Coincident", 16, 2, 17, 1))
sketch3.addConstraint(Sketcher.Constraint("Coincident", 17, 2, 18, 1))
sketch3.addConstraint(Sketcher.Constraint("Tangent", 18, 2, 19, 2))
sketch3.addConstraint(Sketcher.Constraint("Tangent", 19, 1, 16, 1))
sketch3.addConstraint(Sketcher.Constraint("Coincident", 20, 2, 21, 1))
sketch3.addConstraint(Sketcher.Constraint("Coincident", 21, 2, 22, 1))
sketch3.addConstraint(Sketcher.Constraint("Tangent", 22, 2, 23, 2))
sketch3.addConstraint(Sketcher.Constraint("Tangent", 23, 1, 20, 1))
sketch3.addConstraint(Sketcher.Constraint("Coincident", 1, 3, -1, 1))
sketch3.addConstraint(Sketcher.Constraint("Coincident", 7, 3, -1, 1))
sketch3.addConstraint(Sketcher.Constraint("Coincident", 11, 3, -1, 1))
sketch3.addConstraint(Sketcher.Constraint("Coincident", 15, 3, -1, 1))
sketch3.addConstraint(Sketcher.Constraint("Coincident", 19, 3, -1, 1))
sketch3.addConstraint(Sketcher.Constraint("Coincident", 23, 3, -1, 1))
sketch3.addConstraint(Sketcher.Constraint("Equal", 1, 7))
sketch3.addConstraint(Sketcher.Constraint("Equal", 7, 11))
sketch3.addConstraint(Sketcher.Constraint("Equal", 11, 15))
sketch3.addConstraint(Sketcher.Constraint("Equal", 15, 19))
sketch3.addConstraint(Sketcher.Constraint("Equal", 19, 23))
sketch3.addConstraint(Sketcher.Constraint("Symmetric", 2, 2, 12, 2, -1, 1))
sketch3.addConstraint(Sketcher.Constraint("Symmetric", 3, 2, 13, 2, -1, 1))
sketch3.addConstraint(Sketcher.Constraint("Symmetric", 4, 2, 16, 2, -1, 1))
sketch3.addConstraint(Sketcher.Constraint("Symmetric", 5, 2, 17, 2, -1, 1))
sketch3.addConstraint(Sketcher.Constraint("Symmetric", 8, 2, 20, 2, -1, 1))
sketch3.addConstraint(Sketcher.Constraint("Symmetric", 9, 2, 21, 2, -1, 1))
sketch3.addConstraint(Sketcher.Constraint("Equal", 0, 2))
sketch3.addConstraint(Sketcher.Constraint("Equal", 2, 4))
sketch3.addConstraint(Sketcher.Constraint("Equal", 3, 5))
sketch3.addConstraint(Sketcher.Constraint("Equal", 4, 6))
sketch3.addConstraint(Sketcher.Constraint("Equal", 6, 8))
sketch3.addConstraint(Sketcher.Constraint("Equal", 5, 9))
sketch3.addConstraint(Sketcher.Constraint("Equal", 8, 10))
sketch3.addConstraint(Sketcher.Constraint("Radius", 1, 60.0))
sketch3.addConstraint(Sketcher.Constraint("Angle", 3, Q("-170 deg")))
sketch3.addConstraint(Sketcher.Constraint("Angle", 5, Q("130 deg")))
sketch3.addConstraint(Sketcher.Constraint("Angle", 9, Q("70 deg")))
sketch3.addConstraint(Sketcher.Constraint("Distance", 0, 25.0))
sketch3.addConstraint(Sketcher.Constraint("Distance", 3, 15.0))
pad2 = doc.addObject("PartDesign::Pad", "Pad001")
body.addObject(pad2)
pad2.Profile = sketch3
pad2.Length = 22

doc.recompute()
